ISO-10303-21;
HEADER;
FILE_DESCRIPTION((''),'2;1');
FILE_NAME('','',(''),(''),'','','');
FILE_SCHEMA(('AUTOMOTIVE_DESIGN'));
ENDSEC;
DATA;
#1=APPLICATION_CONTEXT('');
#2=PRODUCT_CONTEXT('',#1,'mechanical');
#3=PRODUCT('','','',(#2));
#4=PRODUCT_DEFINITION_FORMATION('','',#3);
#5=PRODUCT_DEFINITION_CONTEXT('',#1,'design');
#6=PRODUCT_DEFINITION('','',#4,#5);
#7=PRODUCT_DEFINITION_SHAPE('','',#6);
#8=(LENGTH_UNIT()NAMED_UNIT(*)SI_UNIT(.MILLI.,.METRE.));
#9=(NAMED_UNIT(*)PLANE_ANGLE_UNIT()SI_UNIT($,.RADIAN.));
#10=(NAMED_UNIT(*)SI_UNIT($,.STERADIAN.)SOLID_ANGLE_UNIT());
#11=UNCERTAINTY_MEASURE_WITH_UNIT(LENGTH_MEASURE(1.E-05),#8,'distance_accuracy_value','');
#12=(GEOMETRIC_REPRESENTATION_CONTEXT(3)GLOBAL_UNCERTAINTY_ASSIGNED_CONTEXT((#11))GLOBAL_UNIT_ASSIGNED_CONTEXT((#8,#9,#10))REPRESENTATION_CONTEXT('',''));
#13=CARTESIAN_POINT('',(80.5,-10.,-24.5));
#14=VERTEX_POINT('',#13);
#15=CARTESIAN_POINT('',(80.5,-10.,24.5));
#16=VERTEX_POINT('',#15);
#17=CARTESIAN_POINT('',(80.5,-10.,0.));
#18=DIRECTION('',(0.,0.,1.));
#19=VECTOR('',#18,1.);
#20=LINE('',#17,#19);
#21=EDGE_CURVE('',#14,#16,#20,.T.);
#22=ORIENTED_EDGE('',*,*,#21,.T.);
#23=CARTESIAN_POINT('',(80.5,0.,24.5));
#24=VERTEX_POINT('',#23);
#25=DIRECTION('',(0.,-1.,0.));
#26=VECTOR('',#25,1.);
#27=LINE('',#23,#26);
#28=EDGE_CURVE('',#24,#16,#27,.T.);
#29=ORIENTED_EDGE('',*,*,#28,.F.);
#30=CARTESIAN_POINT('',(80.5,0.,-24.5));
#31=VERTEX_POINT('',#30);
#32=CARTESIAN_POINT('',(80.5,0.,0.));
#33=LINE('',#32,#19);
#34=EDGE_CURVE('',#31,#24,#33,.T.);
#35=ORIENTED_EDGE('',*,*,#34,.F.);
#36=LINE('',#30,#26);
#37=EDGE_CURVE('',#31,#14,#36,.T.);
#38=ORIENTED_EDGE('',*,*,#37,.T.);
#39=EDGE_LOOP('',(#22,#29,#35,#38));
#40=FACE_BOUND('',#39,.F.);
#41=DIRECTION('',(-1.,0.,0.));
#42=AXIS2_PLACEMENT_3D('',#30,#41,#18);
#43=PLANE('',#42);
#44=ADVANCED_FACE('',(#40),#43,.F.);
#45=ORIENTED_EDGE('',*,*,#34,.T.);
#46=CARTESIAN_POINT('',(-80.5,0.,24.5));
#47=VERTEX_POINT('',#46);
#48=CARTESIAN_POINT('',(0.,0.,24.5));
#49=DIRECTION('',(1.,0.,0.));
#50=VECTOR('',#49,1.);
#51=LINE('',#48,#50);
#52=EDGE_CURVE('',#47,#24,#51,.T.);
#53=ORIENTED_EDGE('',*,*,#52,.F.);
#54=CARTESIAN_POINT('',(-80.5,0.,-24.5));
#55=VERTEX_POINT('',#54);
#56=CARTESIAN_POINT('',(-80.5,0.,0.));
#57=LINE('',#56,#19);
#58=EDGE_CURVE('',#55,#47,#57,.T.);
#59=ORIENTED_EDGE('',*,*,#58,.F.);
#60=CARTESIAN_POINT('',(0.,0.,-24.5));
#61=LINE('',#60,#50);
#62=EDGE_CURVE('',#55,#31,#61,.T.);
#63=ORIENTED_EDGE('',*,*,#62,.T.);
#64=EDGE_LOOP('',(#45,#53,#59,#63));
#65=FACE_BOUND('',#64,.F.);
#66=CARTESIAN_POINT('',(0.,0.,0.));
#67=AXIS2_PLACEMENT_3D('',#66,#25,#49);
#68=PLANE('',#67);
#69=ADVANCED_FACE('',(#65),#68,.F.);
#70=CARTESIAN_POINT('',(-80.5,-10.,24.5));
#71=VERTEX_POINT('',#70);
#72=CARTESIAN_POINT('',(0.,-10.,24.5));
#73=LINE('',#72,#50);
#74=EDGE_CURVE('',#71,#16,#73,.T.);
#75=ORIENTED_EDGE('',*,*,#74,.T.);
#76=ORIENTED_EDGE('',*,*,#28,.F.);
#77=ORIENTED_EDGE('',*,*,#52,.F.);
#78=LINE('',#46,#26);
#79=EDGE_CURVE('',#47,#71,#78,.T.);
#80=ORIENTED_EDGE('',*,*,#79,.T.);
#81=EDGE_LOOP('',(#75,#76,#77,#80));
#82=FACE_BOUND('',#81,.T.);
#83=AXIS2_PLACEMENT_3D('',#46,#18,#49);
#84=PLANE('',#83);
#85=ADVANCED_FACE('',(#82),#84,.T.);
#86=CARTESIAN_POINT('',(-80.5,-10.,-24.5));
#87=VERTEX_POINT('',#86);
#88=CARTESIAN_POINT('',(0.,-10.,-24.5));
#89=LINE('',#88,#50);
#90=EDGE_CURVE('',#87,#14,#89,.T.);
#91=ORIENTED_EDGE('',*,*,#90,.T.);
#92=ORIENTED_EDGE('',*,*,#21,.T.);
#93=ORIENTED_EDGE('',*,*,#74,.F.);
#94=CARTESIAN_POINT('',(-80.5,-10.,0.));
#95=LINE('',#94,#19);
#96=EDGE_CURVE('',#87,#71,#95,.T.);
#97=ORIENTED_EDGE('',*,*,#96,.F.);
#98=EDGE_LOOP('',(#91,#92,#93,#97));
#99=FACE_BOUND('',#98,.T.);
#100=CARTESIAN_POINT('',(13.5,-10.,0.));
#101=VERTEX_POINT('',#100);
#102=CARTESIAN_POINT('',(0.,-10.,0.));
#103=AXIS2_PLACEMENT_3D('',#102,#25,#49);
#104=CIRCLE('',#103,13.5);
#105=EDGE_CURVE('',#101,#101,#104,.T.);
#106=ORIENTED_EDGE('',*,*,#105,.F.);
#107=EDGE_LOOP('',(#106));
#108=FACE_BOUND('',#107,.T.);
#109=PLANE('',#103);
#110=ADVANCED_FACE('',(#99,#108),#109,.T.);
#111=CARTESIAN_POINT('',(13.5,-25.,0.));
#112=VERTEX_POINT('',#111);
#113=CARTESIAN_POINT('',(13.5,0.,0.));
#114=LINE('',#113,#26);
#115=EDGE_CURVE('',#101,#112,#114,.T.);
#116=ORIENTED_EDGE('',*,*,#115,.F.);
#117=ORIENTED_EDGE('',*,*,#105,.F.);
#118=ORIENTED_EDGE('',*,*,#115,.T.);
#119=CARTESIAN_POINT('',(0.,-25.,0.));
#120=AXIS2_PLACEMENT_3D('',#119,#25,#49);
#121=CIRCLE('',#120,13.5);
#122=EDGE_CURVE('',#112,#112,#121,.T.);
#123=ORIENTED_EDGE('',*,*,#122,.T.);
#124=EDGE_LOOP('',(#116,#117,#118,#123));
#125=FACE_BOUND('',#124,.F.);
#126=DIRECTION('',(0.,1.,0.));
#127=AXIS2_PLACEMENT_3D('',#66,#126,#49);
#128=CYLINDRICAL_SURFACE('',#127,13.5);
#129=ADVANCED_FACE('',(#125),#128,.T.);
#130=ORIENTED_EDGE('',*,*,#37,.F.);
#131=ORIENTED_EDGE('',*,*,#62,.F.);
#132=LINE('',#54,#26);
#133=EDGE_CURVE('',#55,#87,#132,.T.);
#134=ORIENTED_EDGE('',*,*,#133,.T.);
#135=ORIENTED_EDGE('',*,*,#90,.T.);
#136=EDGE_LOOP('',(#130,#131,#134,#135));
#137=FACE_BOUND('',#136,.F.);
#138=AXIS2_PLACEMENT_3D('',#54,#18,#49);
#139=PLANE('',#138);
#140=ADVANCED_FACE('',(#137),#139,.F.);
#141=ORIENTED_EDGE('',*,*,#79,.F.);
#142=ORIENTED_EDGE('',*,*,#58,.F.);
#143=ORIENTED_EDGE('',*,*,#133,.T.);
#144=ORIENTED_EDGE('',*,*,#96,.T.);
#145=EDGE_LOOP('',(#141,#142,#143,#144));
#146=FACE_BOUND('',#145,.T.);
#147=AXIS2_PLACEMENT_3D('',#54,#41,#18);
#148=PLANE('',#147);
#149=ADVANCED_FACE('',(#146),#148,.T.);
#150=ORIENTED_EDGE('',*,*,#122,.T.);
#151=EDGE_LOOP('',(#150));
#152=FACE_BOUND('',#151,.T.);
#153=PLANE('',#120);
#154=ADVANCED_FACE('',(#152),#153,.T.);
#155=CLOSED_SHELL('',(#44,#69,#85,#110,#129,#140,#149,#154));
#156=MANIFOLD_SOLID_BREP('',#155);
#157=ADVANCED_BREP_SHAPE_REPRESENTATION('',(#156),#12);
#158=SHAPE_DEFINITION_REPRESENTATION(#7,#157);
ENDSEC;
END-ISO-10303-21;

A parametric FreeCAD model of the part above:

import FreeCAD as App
import Part
import Sketcher


def add_polygon(sketch, points):
    """Adds a closed chain of lines whose ends are joined by coincident constraints."""
    first, n = sketch.GeometryCount, len(points)
    for a, b in zip(points, points[1:] + points[:1]):
        sketch.addGeometry(Part.LineSegment(App.Vector(*a, 0), App.Vector(*b, 0)), False)
    for i in range(n):
        sketch.addConstraint(Sketcher.Constraint("Coincident", first + i, 2, first + (i + 1) % n, 1))

doc = App.newDocument("Part")
body = doc.addObject("PartDesign::Body", "Body")

sketch1 = body.newObject("Sketcher::SketchObject", "Sketch")
sketch1.AttachmentSupport = (doc.getObject("XZ_Plane"), [""])
sketch1.MapMode = "FlatFace"
sketch1.addGeometry(Part.Circle(App.Vector(0, 0, 0), App.Vector(0, 0, 1), 14), False)
sketch1.addConstraint(Sketcher.Constraint("Coincident", 0, 3, -1, 1))
sketch1.addConstraint(Sketcher.Constraint("Diameter", 0, 27.0))
pad1 = body.newObject("PartDesign::Pad", "Pad")
pad1.Profile = sketch1
pad1.Length = 25

sketch2 = body.newObject("Sketcher::SketchObject", "Sketch001")
sketch2.AttachmentSupport = (doc.getObject("XZ_Plane"), [""])
sketch2.MapMode = "FlatFace"
add_polygon(sketch2, [(-80, 24), (-80, -24), (80, -24), (80, 24)])
sketch2.addGeometry(Part.Circle(App.Vector(0, 0, 0), App.Vector(0, 0, 1), 14), False)
sketch2.addConstraint(Sketcher.Constraint("Vertical", 0))
sketch2.addConstraint(Sketcher.Constraint("Horizontal", 1))
sketch2.addConstraint(Sketcher.Constraint("Vertical", 2))
sketch2.addConstraint(Sketcher.Constraint("Horizontal", 3))
sketch2.addConstraint(Sketcher.Constraint("Coincident", 4, 3, -1, 1))
sketch2.addConstraint(Sketcher.Constraint("Symmetric", 0, 2, 2, 2, -1, 1))
sketch2.addConstraint(Sketcher.Constraint("Diameter", 4, 27.0))
sketch2.addConstraint(Sketcher.Constraint("DistanceX", 1, 1, 1, 2, 161.0))
sketch2.addConstraint(Sketcher.Constraint("DistanceY", 0, 2, 0, 1, 49.0))
pad2 = body.newObject("PartDesign::Pad", "Pad001")
pad2.Profile = sketch2
pad2.Length = 10

doc.recompute()
